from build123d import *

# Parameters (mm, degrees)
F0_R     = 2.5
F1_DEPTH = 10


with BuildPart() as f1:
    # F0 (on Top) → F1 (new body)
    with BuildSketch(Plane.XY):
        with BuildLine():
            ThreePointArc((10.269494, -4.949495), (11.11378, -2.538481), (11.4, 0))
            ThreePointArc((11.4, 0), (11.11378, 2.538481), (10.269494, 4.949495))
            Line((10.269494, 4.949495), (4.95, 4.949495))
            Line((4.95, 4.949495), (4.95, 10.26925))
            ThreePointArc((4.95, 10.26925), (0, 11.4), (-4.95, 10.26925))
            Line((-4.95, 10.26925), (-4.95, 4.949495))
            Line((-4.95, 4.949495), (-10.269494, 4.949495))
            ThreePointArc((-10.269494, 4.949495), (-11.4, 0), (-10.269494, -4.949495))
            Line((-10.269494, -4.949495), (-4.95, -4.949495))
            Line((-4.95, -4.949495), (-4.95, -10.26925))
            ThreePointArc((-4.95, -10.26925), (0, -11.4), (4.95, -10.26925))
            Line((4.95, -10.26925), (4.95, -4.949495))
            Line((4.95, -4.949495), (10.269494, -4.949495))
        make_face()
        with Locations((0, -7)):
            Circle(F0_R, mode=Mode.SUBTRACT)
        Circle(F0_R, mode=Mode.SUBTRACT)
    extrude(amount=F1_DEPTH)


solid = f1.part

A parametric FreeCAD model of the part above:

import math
import FreeCAD as App
import Part
import Sketcher

V = App.Vector

doc = App.newDocument("Part")
body = doc.addObject("PartDesign::Body", "Body")

# Sketch on XY plane
sketch1 = doc.addObject("Sketcher::SketchObject", "Sketch")
body.addObject(sketch1)
sketch1.AttachmentSupport = (doc.XY_Plane, [""])
sketch1.MapMode = "FlatFace"
sketch1.addGeometry([
    Part.ArcOfCircle(Part.Circle(V(0, 0, 0), V(0, 0, 1), 11.4), math.radians(-26), math.radians(0)),  # 0
    Part.ArcOfCircle(Part.Circle(V(0, 0, 0), V(0, 0, 1), 11.4), math.radians(0), math.radians(26)),  # 1
    Part.LineSegment(V(10.3, 4.9, 0), V(5, 4.9, 0)),  # 2
    Part.LineSegment(V(5, 4.9, 0), V(5, 10.3, 0)),  # 3
    Part.ArcOfCircle(Part.Circle(V(0, 0, 0), V(0, 0, 1), 11.4), math.radians(64), math.radians(116)),  # 4
    Part.LineSegment(V(-5, 10.3, 0), V(-5, 4.9, 0)),  # 5
    Part.LineSegment(V(-5, 4.9, 0), V(-10.3, 4.9, 0)),  # 6
    Part.ArcOfCircle(Part.Circle(V(0, 0, 0), V(0, 0, 1), 11.4), math.radians(154), math.radians(206)),  # 7
    Part.LineSegment(V(-10.3, -4.9, 0), V(-5, -4.9, 0)),  # 8
    Part.LineSegment(V(-5, -4.9, 0), V(-5, -10.3, 0)),  # 9
    Part.ArcOfCircle(Part.Circle(V(0, 0, 0), V(0, 0, 1), 11.4), math.radians(-116), math.radians(-64)),  # 10
    Part.LineSegment(V(5, -10.3, 0), V(5, -4.9, 0)),  # 11
    Part.LineSegment(V(5, -4.9, 0), V(10.3, -4.9, 0)),  # 12
    Part.Circle(V(0, -7, 0), V(0, 0, 1), 2.5),  # 13
    Part.Circle(V(0, 0, 0), V(0, 0, 1), 2.5),  # 14
], False)
sketch1.addConstraint([
    Sketcher.Constraint("Tangent", 0, 2, 1, 1),
    Sketcher.Constraint("Coincident", 1, 2, 2, 1),
    Sketcher.Constraint("Coincident", 2, 2, 3, 1),
    Sketcher.Constraint("Coincident", 3, 2, 4, 1),
    Sketcher.Constraint("Coincident", 4, 2, 5, 1),
    Sketcher.Constraint("Coincident", 5, 2, 6, 1),
    Sketcher.Constraint("Coincident", 6, 2, 7, 1),
    Sketcher.Constraint("Coincident", 7, 2, 8, 1),
    Sketcher.Constraint("Coincident", 8, 2, 9, 1),
    Sketcher.Constraint("Coincident", 9, 2, 10, 1),
    Sketcher.Constraint("Coincident", 10, 2, 11, 1),
    Sketcher.Constraint("Coincident", 11, 2, 12, 1),
    Sketcher.Constraint("Coincident", 12, 2, 0, 1),
    Sketcher.Constraint("Horizontal", 2),
    Sketcher.Constraint("Vertical", 3),
    Sketcher.Constraint("Vertical", 5),
    Sketcher.Constraint("Horizontal", 6),
    Sketcher.Constraint("Horizontal", 8),
    Sketcher.Constraint("Vertical", 9),
    Sketcher.Constraint("Vertical", 11),
    Sketcher.Constraint("Horizontal", 12),
    Sketcher.Constraint("Coincident", 4, 3, -1, 1),
    Sketcher.Constraint("Coincident", 7, 3, -1, 1),
    Sketcher.Constraint("Coincident", 10, 3, -1, 1),
    Sketcher.Constraint("Coincident", 14, 3, -1, 1),
    Sketcher.Constraint("Equal", 0, 1),
    Sketcher.Constraint("Equal", 4, 10),
    Sketcher.Constraint("Equal", 13, 14),
    Sketcher.Constraint("Symmetric", 1, 2, 7, 2, -1, 1),
    Sketcher.Constraint("Symmetric", 5, 2, 11, 2, -1, 1),
    Sketcher.Constraint("Symmetric", 2, 2, 5, 2, -2),
    Sketcher.Constraint("PointOnObject", 13, 3, -2),
    Sketcher.Constraint("PointOnObject", 0, 2, -1),
    Sketcher.Constraint("Horizontal", 9, 2, 10, 2),
    Sketcher.Constraint("Vertical", 1, 2, 12, 2),
    Sketcher.Constraint("Diameter", 13, 5.0),
    Sketcher.Constraint("Radius", 4, 11.399998),
    Sketcher.Constraint("DistanceY", 13, 3, -1, 1, 7.0),
    Sketcher.Constraint("DistanceX", -1, 1, 0, 2, 11.4),
    Sketcher.Constraint("DistanceX", 4, 2, 3, 2, 9.9),
    Sketcher.Constraint("Radius", 0, 11.400021),
    Sketcher.Constraint("DistanceY", 1, 3, 5, 2, 4.949499),
])
pad1 = doc.addObject("PartDesign::Pad", "Pad")
body.addObject(pad1)
pad1.Profile = sketch1
pad1.Length = 10

doc.recompute()
